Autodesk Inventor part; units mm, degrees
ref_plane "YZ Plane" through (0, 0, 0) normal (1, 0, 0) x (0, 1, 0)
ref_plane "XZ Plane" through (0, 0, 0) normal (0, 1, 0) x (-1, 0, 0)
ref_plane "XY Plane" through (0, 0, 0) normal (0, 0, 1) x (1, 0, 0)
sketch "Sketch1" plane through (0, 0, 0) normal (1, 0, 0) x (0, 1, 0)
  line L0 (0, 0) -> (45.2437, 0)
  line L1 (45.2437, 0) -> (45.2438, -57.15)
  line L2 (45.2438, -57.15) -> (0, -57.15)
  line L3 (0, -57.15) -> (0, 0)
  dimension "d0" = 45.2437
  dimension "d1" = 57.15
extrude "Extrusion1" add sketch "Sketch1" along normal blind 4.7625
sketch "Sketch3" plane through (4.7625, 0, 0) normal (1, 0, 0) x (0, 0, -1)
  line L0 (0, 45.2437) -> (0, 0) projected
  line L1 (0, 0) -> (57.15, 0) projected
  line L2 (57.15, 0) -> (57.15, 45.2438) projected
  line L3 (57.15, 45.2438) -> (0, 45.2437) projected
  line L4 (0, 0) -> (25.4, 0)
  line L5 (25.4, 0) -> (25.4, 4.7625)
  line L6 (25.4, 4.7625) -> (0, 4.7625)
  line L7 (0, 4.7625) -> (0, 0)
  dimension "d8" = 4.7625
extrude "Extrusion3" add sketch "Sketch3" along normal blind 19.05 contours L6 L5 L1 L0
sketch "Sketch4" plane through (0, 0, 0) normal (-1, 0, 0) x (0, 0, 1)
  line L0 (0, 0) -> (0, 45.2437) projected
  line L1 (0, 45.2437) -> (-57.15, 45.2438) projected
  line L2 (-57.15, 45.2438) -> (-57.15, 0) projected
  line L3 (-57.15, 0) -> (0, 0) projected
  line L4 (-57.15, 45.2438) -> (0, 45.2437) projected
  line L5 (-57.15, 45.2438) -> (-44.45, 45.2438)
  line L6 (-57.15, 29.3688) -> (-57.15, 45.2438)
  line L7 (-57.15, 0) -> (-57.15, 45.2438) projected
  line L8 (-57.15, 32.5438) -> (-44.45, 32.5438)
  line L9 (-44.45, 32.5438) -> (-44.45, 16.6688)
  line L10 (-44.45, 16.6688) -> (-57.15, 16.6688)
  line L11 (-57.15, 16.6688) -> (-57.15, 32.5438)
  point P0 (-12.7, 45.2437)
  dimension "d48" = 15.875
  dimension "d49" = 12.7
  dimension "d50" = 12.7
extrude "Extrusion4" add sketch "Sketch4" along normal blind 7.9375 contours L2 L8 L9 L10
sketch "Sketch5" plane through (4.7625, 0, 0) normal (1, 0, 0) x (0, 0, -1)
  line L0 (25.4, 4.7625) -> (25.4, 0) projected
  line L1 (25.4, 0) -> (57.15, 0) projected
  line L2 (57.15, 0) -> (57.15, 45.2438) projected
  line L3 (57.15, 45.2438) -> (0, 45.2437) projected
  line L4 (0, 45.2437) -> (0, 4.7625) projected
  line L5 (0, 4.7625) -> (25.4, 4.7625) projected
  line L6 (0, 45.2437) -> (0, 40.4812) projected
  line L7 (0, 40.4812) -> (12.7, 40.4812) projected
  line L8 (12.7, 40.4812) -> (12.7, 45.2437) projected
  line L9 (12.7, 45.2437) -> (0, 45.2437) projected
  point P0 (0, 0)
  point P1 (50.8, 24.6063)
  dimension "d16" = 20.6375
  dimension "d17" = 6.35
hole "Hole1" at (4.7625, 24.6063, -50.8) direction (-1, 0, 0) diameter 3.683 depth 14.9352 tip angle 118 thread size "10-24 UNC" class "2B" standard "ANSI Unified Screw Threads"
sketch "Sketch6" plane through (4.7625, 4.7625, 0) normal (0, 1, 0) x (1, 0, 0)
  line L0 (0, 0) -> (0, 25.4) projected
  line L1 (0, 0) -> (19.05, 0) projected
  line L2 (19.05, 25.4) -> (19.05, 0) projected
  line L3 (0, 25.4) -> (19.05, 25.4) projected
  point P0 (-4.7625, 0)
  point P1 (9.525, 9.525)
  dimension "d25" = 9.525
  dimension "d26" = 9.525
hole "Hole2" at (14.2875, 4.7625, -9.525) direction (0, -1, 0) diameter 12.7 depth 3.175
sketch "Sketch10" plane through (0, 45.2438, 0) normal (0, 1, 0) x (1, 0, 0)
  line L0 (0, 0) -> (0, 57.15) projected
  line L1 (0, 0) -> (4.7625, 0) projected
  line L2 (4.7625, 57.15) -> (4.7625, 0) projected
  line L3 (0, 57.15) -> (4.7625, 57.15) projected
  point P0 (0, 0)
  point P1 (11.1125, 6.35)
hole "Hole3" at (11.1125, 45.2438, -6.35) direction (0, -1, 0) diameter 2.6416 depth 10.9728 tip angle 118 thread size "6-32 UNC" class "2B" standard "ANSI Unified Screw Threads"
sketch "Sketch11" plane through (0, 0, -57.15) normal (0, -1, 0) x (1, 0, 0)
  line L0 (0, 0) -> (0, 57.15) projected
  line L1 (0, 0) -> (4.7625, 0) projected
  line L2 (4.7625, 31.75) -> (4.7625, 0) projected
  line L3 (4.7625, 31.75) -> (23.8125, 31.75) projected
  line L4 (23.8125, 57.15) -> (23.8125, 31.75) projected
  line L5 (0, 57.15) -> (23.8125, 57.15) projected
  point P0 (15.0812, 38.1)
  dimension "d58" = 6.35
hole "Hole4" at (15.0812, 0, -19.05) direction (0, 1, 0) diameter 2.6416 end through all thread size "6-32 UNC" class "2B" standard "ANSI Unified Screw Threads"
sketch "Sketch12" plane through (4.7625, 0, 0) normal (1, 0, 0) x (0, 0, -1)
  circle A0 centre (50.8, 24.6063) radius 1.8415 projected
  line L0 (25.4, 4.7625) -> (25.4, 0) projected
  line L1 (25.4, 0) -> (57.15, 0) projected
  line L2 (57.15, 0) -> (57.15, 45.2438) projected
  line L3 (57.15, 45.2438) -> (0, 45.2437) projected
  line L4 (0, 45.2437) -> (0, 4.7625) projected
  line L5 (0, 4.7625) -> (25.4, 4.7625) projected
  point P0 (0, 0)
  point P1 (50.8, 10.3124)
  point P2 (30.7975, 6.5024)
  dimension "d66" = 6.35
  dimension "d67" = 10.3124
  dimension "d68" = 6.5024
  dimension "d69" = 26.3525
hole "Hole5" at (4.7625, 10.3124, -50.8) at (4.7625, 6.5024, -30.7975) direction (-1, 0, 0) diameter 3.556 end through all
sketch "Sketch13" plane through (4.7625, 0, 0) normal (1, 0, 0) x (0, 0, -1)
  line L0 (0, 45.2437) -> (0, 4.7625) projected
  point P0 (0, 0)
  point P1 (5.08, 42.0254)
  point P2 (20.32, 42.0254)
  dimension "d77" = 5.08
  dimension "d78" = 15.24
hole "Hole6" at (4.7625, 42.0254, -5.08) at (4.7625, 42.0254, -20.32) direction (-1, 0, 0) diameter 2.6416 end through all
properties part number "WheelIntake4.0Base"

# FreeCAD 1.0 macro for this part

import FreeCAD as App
import Part
import Sketcher
from FreeCAD import Vector
Q = App.Units.Quantity

doc = App.newDocument("Part")
body = doc.addObject("PartDesign::Body", "Body")

# Sketch on YZ plane
sketch1 = doc.addObject("Sketcher::SketchObject", "Sketch")
body.addObject(sketch1)
sketch1.AttachmentSupport = (doc.YZ_Plane, [""])
sketch1.MapMode = "FlatFace"
sketch1.addGeometry([
    Part.LineSegment(Vector(45, 0, 0), Vector(0, 0, 0)),
    Part.LineSegment(Vector(0, 0, 0), Vector(0, -57, 0)),
    Part.LineSegment(Vector(0, -57, 0), Vector(45, -57, 0)),
    Part.LineSegment(Vector(45, -57, 0), Vector(45, 0, 0)),
], False)
sketch1.addConstraint([
    Sketcher.Constraint("Coincident", 0, 2, 1, 1),
    Sketcher.Constraint("Coincident", 1, 2, 2, 1),
    Sketcher.Constraint("Coincident", 2, 2, 3, 1),
    Sketcher.Constraint("Coincident", 3, 2, 0, 1),
    Sketcher.Constraint("Horizontal", 0),
    Sketcher.Constraint("Vertical", 1),
    Sketcher.Constraint("Horizontal", 2),
    Sketcher.Constraint("Vertical", 3),
    Sketcher.Constraint("Coincident", 0, 2, -1, 1),
    Sketcher.Constraint("DistanceY", 1, 2, 1, 1, Q("2.25 in")),
    Sketcher.Constraint("DistanceX", 0, 2, 0, 1, Q("1.781248 in")),
])
pad1 = doc.addObject("PartDesign::Pad", "Pad")
body.addObject(pad1)
pad1.Profile = sketch1
pad1.Length = Q("0.1875 in")

# Sketch on YZ plane
sketch2 = doc.addObject("Sketcher::SketchObject", "Sketch001")
body.addObject(sketch2)
sketch2.AttachmentSupport = (doc.YZ_Plane, [""])
sketch2.MapMode = "FlatFace"
sketch2.AttachmentOffset = App.Placement(Vector(0, 0, 0.1875 * 25.4), App.Rotation())
sketch2.addGeometry([
    Part.LineSegment(Vector(4.8, -25.4, 0), Vector(4.8, 0, 0)),
    Part.LineSegment(Vector(4.8, 0, 0), Vector(0, 0, 0)),
    Part.LineSegment(Vector(0, 0, 0), Vector(0, -25.4, 0)),
    Part.LineSegment(Vector(0, -25.4, 0), Vector(4.8, -25.4, 0)),
], False)
sketch2.addConstraint([
    Sketcher.Constraint("Coincident", 0, 2, 1, 1),
    Sketcher.Constraint("Coincident", 1, 2, 2, 1),
    Sketcher.Constraint("Coincident", 2, 2, 3, 1),
    Sketcher.Constraint("Coincident", 3, 2, 0, 1),
    Sketcher.Constraint("Vertical", 0),
    Sketcher.Constraint("Horizontal", 1),
    Sketcher.Constraint("Vertical", 2),
    Sketcher.Constraint("Horizontal", 3),
    Sketcher.Constraint("Coincident", 1, 2, -1, 1),
    Sketcher.Constraint("DistanceX", 1, 2, 1, 1, Q("0.1875 in")),
    Sketcher.Constraint("DistanceY", 0, 1, 0, 2, Q("1 in")),
])
pad2 = doc.addObject("PartDesign::Pad", "Pad001")
body.addObject(pad2)
pad2.Profile = sketch2
pad2.Length = Q("0.75 in")

# Sketch on YZ plane
sketch3 = doc.addObject("Sketcher::SketchObject", "Sketch002")
body.addObject(sketch3)
sketch3.AttachmentSupport = (doc.YZ_Plane, [""])
sketch3.MapMode = "FlatFace"
sketch3.addGeometry([
    Part.LineSegment(Vector(33, -57, 0), Vector(17, -57, 0)),
    Part.LineSegment(Vector(17, -57, 0), Vector(17, -44, 0)),
    Part.LineSegment(Vector(17, -44, 0), Vector(33, -44, 0)),
    Part.LineSegment(Vector(33, -44, 0), Vector(33, -57, 0)),
], False)
sketch3.addConstraint([
    Sketcher.Constraint("Coincident", 0, 2, 1, 1),
    Sketcher.Constraint("Coincident", 1, 2, 2, 1),
    Sketcher.Constraint("Coincident", 2, 2, 3, 1),
    Sketcher.Constraint("Coincident", 3, 2, 0, 1),
    Sketcher.Constraint("Horizontal", 0),
    Sketcher.Constraint("Vertical", 1),
    Sketcher.Constraint("Horizontal", 2),
    Sketcher.Constraint("Vertical", 3),
    Sketcher.Constraint("DistanceY", 1, 1, 1, 2, Q("0.5 in")),
    Sketcher.Constraint("DistanceX", 0, 2, 0, 1, Q("0.625 in")),
    Sketcher.Constraint("DistanceY", 0, 2, -1, 1, Q("2.25 in")),
    Sketcher.Constraint("DistanceX", -1, 1, 0, 2, Q("0.656252 in")),
])
pad3 = doc.addObject("PartDesign::Pad", "Pad002")
body.addObject(pad3)
pad3.Profile = sketch3
pad3.Length = Q("0.3125 in")
pad3.Reversed = True

# Sketch on YZ plane
sketch4 = doc.addObject("Sketcher::SketchObject", "Sketch003")
body.addObject(sketch4)
sketch4.AttachmentSupport = (doc.YZ_Plane, [""])
sketch4.MapMode = "FlatFace"
sketch4.AttachmentOffset = App.Placement(Vector(0, 0, 0.1875 * 25.4), App.Rotation())
sketch4.addGeometry(Part.Circle(Vector(24.6, -50.8, 0), Vector(0, 0, 1), 1.8), False)
sketch4.addConstraint([
    Sketcher.Constraint("Diameter", 0, Q("0.145 in")),
    Sketcher.Constraint("DistanceY", 0, 3, -1, 1, Q("2 in")),
    Sketcher.Constraint("DistanceX", -1, 1, 0, 3, Q("0.968752 in")),
])
doc.recompute()
hole = doc.addObject("PartDesign::Hole", "Hole")
body.addObject(hole)
hole.Profile = sketch4
hole.ThreadType = "None"
hole.Diameter = Q("0.145 in")
hole.DepthType = "Dimension"
hole.Depth = Q("0.588 in")
hole.DrillPoint = "Angled"
hole.DrillPointAngle = 118

# Sketch on XZ plane
sketch5 = doc.addObject("Sketcher::SketchObject", "Sketch004")
body.addObject(sketch5)
sketch5.AttachmentSupport = (doc.XZ_Plane, [""])
sketch5.MapMode = "FlatFace"
sketch5.AttachmentOffset = App.Placement(Vector(0, 0, -0.1875 * 25.4), App.Rotation())
sketch5.addGeometry(Part.Circle(Vector(14, -10, 0), Vector(0, 0, 1), 6), False)
sketch5.addConstraint([
    Sketcher.Constraint("Diameter", 0, Q("0.5 in")),
    Sketcher.Constraint("DistanceX", -1, 1, 0, 3, Q("0.5625 in")),
    Sketcher.Constraint("DistanceY", 0, 3, -1, 1, Q("0.375 in")),
])
doc.recompute()
hole2 = doc.addObject("PartDesign::Hole", "Hole001")
body.addObject(hole2)
hole2.Profile = sketch5
hole2.ThreadType = "None"
hole2.Diameter = Q("0.5 in")
hole2.DepthType = "Dimension"
hole2.Depth = Q("0.125 in")
hole2.DrillPoint = "Flat"
hole2.Reversed = True

# Sketch on XZ plane
sketch6 = doc.addObject("Sketcher::SketchObject", "Sketch005")
body.addObject(sketch6)
sketch6.AttachmentSupport = (doc.XZ_Plane, [""])
sketch6.MapMode = "FlatFace"
sketch6.AttachmentOffset = App.Placement(Vector(0, 0, -1.781252 * 25.4), App.Rotation())
sketch6.addGeometry(Part.Circle(Vector(11.1, -6.3, 0), Vector(0, 0, 1), 1.3), False)
sketch6.addConstraint([
    Sketcher.Constraint("Diameter", 0, Q("0.104 in")),
    Sketcher.Constraint("DistanceY", 0, 3, -1, 1, Q("0.25 in")),
    Sketcher.Constraint("DistanceX", -1, 1, 0, 3, Q("0.4375 in")),
])
doc.recompute()
hole3 = doc.addObject("PartDesign::Hole", "Hole002")
body.addObject(hole3)
hole3.Profile = sketch6
hole3.ThreadType = "None"
hole3.Diameter = Q("0.104 in")
hole3.DepthType = "Dimension"
hole3.Depth = Q("0.432 in")
hole3.DrillPoint = "Angled"
hole3.DrillPointAngle = 118
hole3.Reversed = True

# Sketch on XZ plane
sketch7 = doc.addObject("Sketcher::SketchObject", "Sketch006")
body.addObject(sketch7)
sketch7.AttachmentSupport = (doc.XZ_Plane, [""])
sketch7.MapMode = "FlatFace"
sketch7.addGeometry(Part.Circle(Vector(15.1, -19.1, 0), Vector(0, 0, 1), 1.3), False)
sketch7.addConstraint([
    Sketcher.Constraint("Diameter", 0, Q("0.104 in")),
    Sketcher.Constraint("DistanceY", 0, 3, -1, 1, Q("0.75 in")),
    Sketcher.Constraint("DistanceX", -1, 1, 0, 3, Q("0.593748 in")),
])
doc.recompute()
hole4 = doc.addObject("PartDesign::Hole", "Hole003")
body.addObject(hole4)
hole4.Profile = sketch7
hole4.ThreadType = "None"
hole4.Diameter = Q("0.104 in")
hole4.DepthType = "ThroughAll"

# Sketch on YZ plane
sketch8 = doc.addObject("Sketcher::SketchObject", "Sketch007")
body.addObject(sketch8)
sketch8.AttachmentSupport = (doc.YZ_Plane, [""])
sketch8.MapMode = "FlatFace"
sketch8.AttachmentOffset = App.Placement(Vector(0, 0, 0.1875 * 25.4), App.Rotation())
sketch8.addGeometry([
    Part.Circle(Vector(10.3, -50.8, 0), Vector(0, 0, 1), 1.8),
    Part.Circle(Vector(6.5, -30.8, 0), Vector(0, 0, 1), 1.8),
], False)
sketch8.addConstraint([
    Sketcher.Constraint("Equal", 0, 1),
    Sketcher.Constraint("Diameter", 0, Q("0.14 in")),
    Sketcher.Constraint("DistanceY", 0, 3, -1, 1, Q("2 in")),
    Sketcher.Constraint("DistanceX", 1, 3, 0, 3, Q("0.15 in")),
    Sketcher.Constraint("DistanceX", -1, 1, 0, 3, Q("0.406 in")),
    Sketcher.Constraint("DistanceY", 1, 3, -1, 1, Q("1.2125 in")),
])
doc.recompute()
hole5 = doc.addObject("PartDesign::Hole", "Hole004")
body.addObject(hole5)
hole5.Profile = sketch8
hole5.ThreadType = "None"
hole5.Diameter = Q("0.14 in")
hole5.DepthType = "ThroughAll"

# Sketch on YZ plane
sketch9 = doc.addObject("Sketcher::SketchObject", "Sketch008")
body.addObject(sketch9)
sketch9.AttachmentSupport = (doc.YZ_Plane, [""])
sketch9.MapMode = "FlatFace"
sketch9.AttachmentOffset = App.Placement(Vector(0, 0, 0.1875 * 25.4), App.Rotation())
sketch9.addGeometry([
    Part.Circle(Vector(42, -5.1, 0), Vector(0, 0, 1), 1.3),
    Part.Circle(Vector(42, -20.3, 0), Vector(0, 0, 1), 1.3),
], False)
sketch9.addConstraint([
    Sketcher.Constraint("Equal", 0, 1),
    Sketcher.Constraint("Vertical", 0, 3, 1, 3),
    Sketcher.Constraint("Diameter", 0, Q("0.104 in")),
    Sketcher.Constraint("DistanceY", 0, 3, -1, 1, Q("0.2 in")),
    Sketcher.Constraint("DistanceY", 1, 3, -1, 1, Q("0.8 in")),
    Sketcher.Constraint("DistanceX", -1, 1, 0, 3, 42.0254),
])
doc.recompute()
hole6 = doc.addObject("PartDesign::Hole", "Hole005")
body.addObject(hole6)
hole6.Profile = sketch9
hole6.ThreadType = "None"
hole6.Diameter = Q("0.104 in")
hole6.DepthType = "ThroughAll"

doc.recompute()
